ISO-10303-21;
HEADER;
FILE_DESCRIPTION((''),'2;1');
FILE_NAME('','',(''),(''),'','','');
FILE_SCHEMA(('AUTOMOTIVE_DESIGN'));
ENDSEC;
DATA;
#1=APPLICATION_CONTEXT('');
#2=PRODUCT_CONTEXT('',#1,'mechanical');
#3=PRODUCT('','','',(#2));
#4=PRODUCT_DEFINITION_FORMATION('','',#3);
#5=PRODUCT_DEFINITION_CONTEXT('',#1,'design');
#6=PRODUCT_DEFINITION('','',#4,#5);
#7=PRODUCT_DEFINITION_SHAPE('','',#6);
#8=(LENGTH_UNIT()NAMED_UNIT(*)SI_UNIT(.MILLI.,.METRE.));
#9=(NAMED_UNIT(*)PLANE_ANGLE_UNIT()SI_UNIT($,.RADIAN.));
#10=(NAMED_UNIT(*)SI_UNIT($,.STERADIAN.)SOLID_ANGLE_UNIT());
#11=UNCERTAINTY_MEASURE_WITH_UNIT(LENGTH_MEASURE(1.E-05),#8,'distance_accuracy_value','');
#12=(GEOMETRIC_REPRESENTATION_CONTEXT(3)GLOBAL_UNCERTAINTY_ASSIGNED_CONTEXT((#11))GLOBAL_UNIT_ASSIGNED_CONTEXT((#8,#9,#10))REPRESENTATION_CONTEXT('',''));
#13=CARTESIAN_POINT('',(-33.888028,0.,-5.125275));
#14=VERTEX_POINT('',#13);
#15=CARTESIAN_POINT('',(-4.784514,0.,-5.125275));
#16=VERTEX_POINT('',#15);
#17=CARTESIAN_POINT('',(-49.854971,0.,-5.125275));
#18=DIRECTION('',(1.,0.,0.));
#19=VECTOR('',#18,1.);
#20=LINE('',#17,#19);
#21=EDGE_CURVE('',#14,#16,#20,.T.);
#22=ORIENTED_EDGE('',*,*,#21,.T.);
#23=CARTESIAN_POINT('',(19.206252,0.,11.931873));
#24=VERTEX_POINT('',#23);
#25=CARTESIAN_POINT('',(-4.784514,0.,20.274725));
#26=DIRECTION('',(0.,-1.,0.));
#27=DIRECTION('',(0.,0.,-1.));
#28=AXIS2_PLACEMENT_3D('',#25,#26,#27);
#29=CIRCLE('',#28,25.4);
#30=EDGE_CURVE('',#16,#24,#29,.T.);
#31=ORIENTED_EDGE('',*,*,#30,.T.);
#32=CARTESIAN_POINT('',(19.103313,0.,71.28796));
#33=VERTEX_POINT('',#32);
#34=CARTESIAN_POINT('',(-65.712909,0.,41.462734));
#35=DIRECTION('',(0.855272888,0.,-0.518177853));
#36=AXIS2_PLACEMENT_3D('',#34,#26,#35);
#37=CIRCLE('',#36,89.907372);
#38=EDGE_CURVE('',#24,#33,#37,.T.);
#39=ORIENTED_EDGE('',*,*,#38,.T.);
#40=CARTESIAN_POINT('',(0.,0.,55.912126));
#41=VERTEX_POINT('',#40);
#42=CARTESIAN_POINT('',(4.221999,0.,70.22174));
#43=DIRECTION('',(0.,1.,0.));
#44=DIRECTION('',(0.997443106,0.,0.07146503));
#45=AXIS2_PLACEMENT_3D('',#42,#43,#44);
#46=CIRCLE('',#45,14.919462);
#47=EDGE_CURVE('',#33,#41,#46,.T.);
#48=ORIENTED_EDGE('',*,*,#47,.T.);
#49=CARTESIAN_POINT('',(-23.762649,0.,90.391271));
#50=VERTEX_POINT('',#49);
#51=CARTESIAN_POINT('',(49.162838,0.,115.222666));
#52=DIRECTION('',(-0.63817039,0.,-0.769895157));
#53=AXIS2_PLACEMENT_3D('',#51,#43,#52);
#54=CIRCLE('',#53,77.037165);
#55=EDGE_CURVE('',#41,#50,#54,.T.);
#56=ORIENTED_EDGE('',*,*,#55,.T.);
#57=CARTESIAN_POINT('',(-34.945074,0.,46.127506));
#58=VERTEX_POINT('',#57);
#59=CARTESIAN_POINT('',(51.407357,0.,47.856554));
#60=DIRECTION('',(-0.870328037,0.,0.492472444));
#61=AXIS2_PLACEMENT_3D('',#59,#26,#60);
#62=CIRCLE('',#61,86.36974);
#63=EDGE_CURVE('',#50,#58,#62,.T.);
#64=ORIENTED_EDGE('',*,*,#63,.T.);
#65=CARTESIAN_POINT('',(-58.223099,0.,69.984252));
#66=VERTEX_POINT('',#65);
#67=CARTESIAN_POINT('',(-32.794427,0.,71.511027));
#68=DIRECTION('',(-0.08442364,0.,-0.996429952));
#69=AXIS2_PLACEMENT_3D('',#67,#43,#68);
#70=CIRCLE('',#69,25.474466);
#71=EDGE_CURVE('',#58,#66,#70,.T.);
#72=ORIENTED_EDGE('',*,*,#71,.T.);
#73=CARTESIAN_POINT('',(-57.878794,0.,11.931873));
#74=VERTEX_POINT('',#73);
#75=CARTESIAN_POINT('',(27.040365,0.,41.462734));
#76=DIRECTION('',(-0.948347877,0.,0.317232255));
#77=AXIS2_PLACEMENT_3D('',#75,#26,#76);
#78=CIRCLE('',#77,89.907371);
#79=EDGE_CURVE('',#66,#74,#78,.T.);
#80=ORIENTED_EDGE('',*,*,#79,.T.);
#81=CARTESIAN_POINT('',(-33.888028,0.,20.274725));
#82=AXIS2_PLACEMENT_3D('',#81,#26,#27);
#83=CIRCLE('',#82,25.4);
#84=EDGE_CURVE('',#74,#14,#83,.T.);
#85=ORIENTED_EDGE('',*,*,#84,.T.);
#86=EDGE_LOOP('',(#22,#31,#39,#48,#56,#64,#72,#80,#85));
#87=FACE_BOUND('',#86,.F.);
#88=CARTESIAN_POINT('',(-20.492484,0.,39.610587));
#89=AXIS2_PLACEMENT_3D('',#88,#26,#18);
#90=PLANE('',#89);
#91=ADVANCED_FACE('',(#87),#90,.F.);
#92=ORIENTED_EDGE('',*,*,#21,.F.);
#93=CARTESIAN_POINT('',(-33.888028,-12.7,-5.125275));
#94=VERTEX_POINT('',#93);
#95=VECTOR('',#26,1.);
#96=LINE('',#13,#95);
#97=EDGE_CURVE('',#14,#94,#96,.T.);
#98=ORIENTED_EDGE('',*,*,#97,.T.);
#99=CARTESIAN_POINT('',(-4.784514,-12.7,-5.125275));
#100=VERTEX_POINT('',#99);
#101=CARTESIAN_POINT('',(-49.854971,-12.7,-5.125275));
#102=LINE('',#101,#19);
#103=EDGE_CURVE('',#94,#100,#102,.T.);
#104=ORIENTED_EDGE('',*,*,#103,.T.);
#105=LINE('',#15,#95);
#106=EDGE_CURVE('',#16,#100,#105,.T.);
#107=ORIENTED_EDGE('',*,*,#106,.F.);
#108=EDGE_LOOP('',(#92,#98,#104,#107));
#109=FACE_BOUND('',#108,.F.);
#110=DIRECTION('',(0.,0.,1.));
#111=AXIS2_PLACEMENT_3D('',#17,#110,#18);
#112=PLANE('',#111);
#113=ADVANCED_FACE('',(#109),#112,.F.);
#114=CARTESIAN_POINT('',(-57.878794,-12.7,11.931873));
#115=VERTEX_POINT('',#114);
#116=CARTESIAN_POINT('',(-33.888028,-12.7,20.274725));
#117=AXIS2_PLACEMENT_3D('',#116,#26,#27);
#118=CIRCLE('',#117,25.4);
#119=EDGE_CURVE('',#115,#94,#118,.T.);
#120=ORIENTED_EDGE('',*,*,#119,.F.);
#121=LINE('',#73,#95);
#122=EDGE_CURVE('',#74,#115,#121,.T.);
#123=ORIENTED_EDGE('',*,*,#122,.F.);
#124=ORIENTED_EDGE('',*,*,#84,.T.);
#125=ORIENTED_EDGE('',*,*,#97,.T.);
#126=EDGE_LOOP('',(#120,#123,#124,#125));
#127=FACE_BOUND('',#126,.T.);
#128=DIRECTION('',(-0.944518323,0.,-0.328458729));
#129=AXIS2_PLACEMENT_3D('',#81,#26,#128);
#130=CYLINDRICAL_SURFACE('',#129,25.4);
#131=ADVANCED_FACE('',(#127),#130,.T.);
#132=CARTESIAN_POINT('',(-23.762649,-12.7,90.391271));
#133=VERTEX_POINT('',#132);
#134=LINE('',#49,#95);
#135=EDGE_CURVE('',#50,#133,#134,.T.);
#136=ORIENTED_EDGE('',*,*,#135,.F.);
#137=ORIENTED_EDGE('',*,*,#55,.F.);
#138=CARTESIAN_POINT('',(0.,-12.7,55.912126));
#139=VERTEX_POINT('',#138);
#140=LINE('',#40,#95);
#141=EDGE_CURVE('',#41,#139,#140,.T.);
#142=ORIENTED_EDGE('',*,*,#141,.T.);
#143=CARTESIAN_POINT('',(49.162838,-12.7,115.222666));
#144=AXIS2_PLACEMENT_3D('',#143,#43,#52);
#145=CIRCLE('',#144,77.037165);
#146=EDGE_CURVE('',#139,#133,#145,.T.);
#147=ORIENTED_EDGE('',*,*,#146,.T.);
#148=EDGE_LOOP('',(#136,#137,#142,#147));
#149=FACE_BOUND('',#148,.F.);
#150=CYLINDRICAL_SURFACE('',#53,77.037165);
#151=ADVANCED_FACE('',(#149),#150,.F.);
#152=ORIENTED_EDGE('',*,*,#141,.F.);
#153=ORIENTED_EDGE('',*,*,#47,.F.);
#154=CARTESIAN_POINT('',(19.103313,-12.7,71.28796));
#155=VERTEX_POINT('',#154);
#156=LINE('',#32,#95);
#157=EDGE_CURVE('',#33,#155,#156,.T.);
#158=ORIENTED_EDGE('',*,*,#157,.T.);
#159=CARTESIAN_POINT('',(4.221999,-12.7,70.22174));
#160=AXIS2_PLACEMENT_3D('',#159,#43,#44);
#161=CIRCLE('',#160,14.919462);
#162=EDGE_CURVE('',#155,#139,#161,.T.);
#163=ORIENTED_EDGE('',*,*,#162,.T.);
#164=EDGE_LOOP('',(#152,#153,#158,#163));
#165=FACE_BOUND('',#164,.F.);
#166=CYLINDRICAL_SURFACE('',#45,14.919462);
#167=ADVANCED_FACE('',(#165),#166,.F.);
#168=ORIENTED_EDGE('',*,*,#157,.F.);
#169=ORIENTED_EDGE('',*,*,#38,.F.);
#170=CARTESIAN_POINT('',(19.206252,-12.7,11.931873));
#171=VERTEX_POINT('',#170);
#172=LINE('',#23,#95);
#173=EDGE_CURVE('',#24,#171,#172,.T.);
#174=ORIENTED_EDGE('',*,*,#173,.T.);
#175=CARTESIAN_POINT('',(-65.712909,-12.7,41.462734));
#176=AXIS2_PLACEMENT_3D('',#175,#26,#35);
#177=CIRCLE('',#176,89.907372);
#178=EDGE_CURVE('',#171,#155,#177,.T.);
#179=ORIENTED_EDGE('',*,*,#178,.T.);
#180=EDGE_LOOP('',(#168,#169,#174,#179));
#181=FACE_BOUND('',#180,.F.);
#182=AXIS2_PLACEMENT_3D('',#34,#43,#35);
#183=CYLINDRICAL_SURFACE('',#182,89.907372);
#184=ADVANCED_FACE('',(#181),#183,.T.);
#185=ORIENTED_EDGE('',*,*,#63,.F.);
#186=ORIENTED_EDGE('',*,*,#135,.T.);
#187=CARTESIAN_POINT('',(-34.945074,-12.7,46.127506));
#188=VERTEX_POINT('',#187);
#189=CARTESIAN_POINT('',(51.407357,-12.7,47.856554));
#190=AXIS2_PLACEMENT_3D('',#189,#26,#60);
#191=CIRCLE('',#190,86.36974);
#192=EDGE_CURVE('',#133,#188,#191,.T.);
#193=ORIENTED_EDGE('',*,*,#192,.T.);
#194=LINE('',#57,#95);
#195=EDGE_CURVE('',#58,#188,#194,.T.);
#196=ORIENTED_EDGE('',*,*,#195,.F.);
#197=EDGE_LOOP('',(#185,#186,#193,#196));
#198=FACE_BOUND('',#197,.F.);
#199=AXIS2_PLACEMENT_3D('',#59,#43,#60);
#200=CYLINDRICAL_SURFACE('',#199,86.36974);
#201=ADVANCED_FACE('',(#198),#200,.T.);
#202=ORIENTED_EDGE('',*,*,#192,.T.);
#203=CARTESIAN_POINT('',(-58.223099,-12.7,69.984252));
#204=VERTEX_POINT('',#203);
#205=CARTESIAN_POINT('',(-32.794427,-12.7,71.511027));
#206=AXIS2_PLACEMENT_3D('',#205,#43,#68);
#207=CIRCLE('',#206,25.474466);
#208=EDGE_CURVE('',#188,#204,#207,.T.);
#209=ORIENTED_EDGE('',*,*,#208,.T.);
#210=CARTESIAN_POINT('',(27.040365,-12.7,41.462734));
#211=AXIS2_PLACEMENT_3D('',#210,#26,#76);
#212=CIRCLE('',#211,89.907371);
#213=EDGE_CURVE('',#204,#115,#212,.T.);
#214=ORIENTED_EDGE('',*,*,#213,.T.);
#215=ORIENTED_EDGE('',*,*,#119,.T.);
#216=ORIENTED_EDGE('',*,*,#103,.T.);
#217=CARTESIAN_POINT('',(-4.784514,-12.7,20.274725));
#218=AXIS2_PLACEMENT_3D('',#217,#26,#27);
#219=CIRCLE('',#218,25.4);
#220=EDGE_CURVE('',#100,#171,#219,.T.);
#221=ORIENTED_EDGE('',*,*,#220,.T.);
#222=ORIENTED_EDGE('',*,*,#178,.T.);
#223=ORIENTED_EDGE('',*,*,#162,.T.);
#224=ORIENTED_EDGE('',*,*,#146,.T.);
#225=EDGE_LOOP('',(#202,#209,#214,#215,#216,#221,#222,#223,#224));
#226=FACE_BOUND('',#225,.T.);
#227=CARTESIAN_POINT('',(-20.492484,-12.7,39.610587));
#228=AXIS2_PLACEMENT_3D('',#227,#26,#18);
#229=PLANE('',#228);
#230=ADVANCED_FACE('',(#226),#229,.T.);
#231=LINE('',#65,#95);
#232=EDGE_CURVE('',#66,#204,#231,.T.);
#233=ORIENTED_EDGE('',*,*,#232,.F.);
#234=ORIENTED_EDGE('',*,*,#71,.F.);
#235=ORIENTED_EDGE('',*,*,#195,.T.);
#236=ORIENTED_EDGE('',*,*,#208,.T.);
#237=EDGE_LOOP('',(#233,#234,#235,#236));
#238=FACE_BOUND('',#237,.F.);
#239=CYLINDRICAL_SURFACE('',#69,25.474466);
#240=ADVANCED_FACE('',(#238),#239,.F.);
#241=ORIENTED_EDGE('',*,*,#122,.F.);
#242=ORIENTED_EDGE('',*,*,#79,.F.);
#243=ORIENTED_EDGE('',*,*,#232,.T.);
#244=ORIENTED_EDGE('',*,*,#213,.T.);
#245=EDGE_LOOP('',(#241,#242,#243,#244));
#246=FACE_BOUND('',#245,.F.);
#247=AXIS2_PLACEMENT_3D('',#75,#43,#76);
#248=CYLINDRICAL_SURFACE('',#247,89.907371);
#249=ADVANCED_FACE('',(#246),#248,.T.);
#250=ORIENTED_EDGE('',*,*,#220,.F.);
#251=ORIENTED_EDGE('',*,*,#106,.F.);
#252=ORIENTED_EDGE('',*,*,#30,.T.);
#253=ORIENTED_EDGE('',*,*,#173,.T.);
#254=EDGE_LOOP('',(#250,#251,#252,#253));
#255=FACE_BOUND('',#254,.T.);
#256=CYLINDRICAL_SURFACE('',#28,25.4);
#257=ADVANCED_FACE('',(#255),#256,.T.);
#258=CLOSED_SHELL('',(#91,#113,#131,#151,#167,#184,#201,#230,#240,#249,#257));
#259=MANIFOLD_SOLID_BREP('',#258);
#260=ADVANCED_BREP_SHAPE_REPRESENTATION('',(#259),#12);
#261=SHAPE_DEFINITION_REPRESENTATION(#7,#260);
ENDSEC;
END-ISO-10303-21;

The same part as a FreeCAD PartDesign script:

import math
import FreeCAD as App
import Part
import Sketcher
from FreeCAD import Vector
Q = App.Units.Quantity


def edges_at(feature, points):
    """Names of the edges that pass closest to the given points."""
    edges = feature.Shape.Edges
    near = lambda p: min(range(len(edges)), key=lambda i: edges[i].distToShape(Part.Vertex(*p))[0])
    return sorted({f"Edge{near(p) + 1}" for p in points})

doc = App.newDocument("Part")
body = doc.addObject("PartDesign::Body", "Body")

# Sketch on XZ plane
sketch1 = doc.addObject("Sketcher::SketchObject", "Sketch")
body.addObject(sketch1)
sketch1.AttachmentSupport = (doc.XZ_Plane, [""])
sketch1.MapMode = "FlatFace"
sketch1.addGeometry([
    Part.ArcOfCircle(Part.Circle(Vector(-33, 72, 0), Vector(0, 0, 1), 25), math.radians(-177), math.radians(-95)),  # 0
    Part.ArcOfCircle(Part.Circle(Vector(27, 41, 0), Vector(0, 0, 1), 90), math.radians(162), math.radians(211)),  # 1
    Part.LineSegment(Vector(-50, -5, 0), Vector(11, -5, 0)),  # 2
    Part.ArcOfCircle(Part.Circle(Vector(-66, 41, 0), Vector(0, 0, 1), 90), math.radians(-31), math.radians(19)),  # 3
    Part.ArcOfCircle(Part.Circle(Vector(4, 70, 0), Vector(0, 0, 1), 15), math.radians(-106), math.radians(4)),  # 4
    Part.ArcOfCircle(Part.Circle(Vector(49, 115, 0), Vector(0, 0, 1), 77), math.radians(-161), math.radians(-130)),  # 5
    Part.ArcOfCircle(Part.Circle(Vector(51, 48, 0), Vector(0, 0, 1), 86), math.radians(150), math.radians(181)),  # 6
], False)
sketch1.addConstraint([
    Sketcher.Constraint("Coincident", 0, 1, 1, 1),
    Sketcher.Constraint("Coincident", 1, 2, 2, 1),
    Sketcher.Constraint("Coincident", 2, 2, 3, 1),
    Sketcher.Constraint("Coincident", 3, 2, 4, 2),
    Sketcher.Constraint("Coincident", 4, 1, 5, 2),
    Sketcher.Constraint("Coincident", 5, 1, 6, 1),
    Sketcher.Constraint("Coincident", 6, 2, 0, 2),
    Sketcher.Constraint("Horizontal", 2),
    Sketcher.Constraint("Equal", 1, 3),
    Sketcher.Constraint("PointOnObject", 4, 1, -2),
    Sketcher.Constraint("Horizontal", 1, 3, 3, 3),
    Sketcher.Constraint("Radius", 1, 89.907371),
    Sketcher.Constraint("Radius", 4, 14.919462),
    Sketcher.Constraint("Radius", 6, 86.36974),
    Sketcher.Constraint("DistanceX", 2, 1, 2, 2, 61.0374),
    Sketcher.Constraint("Radius", 0, 25.474466),
    Sketcher.Constraint("Radius", 5, 77.037165),
    Sketcher.Constraint("DistanceX", -1, 1, 4, 3, 4.221999),
    Sketcher.Constraint("DistanceX", 0, 1, -1, 1, 58.223099),
    Sketcher.Constraint("DistanceY", 6, 3, 0, 1, 22.127698),
    Sketcher.Constraint("DistanceY", 1, 2, 0, 3, 76.636302),
    Sketcher.Constraint("DistanceY", 4, 1, 0, 3, 15.598901),
    Sketcher.Constraint("DistanceX", 3, 3, -1, 1, 65.712909),
    Sketcher.Constraint("DistanceY", -1, 1, 4, 3, 70.22174),
    Sketcher.Constraint("DistanceX", 1, 2, -1, 1, 49.854971),
    Sketcher.Constraint("DistanceX", 5, 1, -1, 1, 23.762649),
    Sketcher.Constraint("DistanceY", -1, 1, 5, 1, 90.391271),
])
pad1 = doc.addObject("PartDesign::Pad", "Pad")
body.addObject(pad1)
pad1.Profile = sketch1
pad1.Length = Q("0.5 in")
doc.recompute()

fillet = doc.addObject("PartDesign::Fillet", "Fillet")
body.addObject(fillet)
fillet.Base = (pad1, edges_at(pad1, [(-49.855, -6.35, -5.125)]))
fillet.Radius = Q("1 in")
doc.recompute()

fillet2 = doc.addObject("PartDesign::Fillet", "Fillet001")
body.addObject(fillet2)
fillet2.Base = (fillet, edges_at(fillet, [(11.182, -6.35, -5.125)]))
fillet2.Radius = Q("1 in")

doc.recompute()
